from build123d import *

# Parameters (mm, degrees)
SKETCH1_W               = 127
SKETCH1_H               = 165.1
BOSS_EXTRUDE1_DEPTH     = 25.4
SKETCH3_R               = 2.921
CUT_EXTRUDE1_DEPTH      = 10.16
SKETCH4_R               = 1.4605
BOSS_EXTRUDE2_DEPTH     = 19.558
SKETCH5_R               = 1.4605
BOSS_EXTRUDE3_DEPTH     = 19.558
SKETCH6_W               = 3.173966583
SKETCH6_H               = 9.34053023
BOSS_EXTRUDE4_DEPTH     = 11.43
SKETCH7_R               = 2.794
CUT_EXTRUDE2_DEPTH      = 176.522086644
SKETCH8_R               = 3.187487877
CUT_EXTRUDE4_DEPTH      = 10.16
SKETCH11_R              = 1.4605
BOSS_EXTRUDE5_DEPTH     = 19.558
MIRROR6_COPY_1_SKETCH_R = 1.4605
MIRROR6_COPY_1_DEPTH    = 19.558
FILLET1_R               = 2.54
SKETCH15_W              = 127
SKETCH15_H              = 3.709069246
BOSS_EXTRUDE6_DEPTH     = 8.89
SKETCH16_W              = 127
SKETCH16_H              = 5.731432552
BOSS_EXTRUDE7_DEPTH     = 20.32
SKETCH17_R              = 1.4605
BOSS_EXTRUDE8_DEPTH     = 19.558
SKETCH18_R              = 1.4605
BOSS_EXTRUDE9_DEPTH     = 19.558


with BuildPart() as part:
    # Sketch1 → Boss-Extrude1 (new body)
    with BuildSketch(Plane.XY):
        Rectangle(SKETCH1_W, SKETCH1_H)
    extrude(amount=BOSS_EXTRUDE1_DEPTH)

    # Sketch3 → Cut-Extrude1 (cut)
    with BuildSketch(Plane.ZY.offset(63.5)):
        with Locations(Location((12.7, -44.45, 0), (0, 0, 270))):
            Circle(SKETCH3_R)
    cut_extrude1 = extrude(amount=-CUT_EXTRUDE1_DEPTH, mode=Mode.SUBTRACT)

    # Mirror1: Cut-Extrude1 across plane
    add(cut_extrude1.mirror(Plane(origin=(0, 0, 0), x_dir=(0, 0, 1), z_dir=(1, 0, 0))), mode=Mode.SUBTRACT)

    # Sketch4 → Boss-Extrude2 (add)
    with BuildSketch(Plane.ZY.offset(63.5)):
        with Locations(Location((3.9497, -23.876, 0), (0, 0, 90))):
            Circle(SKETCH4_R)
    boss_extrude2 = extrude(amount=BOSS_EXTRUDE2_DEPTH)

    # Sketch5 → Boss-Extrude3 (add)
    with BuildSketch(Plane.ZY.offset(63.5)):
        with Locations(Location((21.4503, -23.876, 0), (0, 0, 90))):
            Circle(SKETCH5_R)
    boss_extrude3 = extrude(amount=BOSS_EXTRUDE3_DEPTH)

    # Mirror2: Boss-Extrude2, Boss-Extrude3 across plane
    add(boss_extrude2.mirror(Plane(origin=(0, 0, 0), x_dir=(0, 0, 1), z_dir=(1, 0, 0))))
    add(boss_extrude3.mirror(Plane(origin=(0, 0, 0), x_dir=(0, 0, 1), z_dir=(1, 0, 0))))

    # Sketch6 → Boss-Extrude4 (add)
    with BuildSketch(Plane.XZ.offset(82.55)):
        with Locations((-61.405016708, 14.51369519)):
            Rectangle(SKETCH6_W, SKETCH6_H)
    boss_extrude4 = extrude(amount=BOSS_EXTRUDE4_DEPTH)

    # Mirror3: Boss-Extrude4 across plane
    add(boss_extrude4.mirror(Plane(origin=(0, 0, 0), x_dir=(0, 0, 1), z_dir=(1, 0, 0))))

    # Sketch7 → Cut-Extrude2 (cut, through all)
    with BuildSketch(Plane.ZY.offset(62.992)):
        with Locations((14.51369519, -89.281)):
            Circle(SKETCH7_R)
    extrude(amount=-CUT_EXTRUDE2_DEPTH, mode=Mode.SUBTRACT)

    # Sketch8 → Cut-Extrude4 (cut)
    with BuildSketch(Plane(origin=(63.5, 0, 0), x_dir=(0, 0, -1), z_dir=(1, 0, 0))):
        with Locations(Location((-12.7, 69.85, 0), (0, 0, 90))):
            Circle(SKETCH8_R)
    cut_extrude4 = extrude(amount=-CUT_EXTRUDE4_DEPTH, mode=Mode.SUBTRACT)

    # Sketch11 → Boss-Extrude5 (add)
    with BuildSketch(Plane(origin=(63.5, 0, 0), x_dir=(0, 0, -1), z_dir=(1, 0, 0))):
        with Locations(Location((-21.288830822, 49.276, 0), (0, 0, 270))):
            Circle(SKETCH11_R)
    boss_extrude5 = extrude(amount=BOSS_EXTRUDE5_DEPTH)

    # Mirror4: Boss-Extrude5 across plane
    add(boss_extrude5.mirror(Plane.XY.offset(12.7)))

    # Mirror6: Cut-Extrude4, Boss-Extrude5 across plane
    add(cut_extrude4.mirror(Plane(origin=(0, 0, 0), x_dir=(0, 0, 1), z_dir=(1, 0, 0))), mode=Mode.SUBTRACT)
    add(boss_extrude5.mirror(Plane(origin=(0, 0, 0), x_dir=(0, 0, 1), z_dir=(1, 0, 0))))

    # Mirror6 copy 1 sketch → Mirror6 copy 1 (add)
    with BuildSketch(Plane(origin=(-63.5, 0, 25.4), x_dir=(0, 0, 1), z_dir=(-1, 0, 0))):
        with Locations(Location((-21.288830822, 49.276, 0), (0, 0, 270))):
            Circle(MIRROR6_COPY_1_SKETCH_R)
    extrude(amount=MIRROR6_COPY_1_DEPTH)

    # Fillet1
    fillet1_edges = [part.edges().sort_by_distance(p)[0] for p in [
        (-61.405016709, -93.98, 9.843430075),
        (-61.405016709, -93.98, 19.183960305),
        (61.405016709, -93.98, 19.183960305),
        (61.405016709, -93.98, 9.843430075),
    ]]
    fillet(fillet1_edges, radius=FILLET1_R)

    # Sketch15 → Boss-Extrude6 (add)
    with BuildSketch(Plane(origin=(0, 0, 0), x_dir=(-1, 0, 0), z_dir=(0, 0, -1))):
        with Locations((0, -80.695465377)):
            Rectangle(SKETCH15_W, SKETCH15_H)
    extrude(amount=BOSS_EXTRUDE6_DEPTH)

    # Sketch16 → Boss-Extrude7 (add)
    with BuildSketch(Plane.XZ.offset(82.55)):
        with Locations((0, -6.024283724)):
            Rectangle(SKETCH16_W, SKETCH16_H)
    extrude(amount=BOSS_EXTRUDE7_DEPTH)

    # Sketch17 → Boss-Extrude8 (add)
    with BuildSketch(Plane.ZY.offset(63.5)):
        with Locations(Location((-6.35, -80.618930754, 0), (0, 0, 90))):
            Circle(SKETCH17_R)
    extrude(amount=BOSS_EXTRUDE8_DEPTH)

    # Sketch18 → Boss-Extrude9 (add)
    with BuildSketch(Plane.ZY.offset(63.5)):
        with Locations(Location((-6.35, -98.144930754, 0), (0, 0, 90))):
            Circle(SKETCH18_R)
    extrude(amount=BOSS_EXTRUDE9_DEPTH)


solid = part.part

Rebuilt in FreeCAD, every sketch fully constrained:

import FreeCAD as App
import Part
import Sketcher
from FreeCAD import Vector
Q = App.Units.Quantity


def edges_at(feature, points):
    """Names of the edges that pass closest to the given points."""
    edges = feature.Shape.Edges
    near = lambda p: min(range(len(edges)), key=lambda i: edges[i].distToShape(Part.Vertex(*p))[0])
    return sorted({f"Edge{near(p) + 1}" for p in points})

doc = App.newDocument("Part")
body = doc.addObject("PartDesign::Body", "Body")

sketch1 = body.newObject("Sketcher::SketchObject", "Sketch")
sketch1.AttachmentSupport = (doc.getObject("XY_Plane"), [""])
sketch1.MapMode = "FlatFace"
sketch1.addGeometry([
    Part.LineSegment(Vector(-63.5, 82.55, 0), Vector(-63.5, -82.55, 0)),
    Part.LineSegment(Vector(-63.5, -82.55, 0), Vector(63.5, -82.55, 0)),
    Part.LineSegment(Vector(63.5, -82.55, 0), Vector(63.5, 82.55, 0)),
    Part.LineSegment(Vector(63.5, 82.55, 0), Vector(-63.5, 82.55, 0)),
], False)
sketch1.addConstraint([
    Sketcher.Constraint("Coincident", 0, 2, 1, 1),
    Sketcher.Constraint("Coincident", 1, 2, 2, 1),
    Sketcher.Constraint("Coincident", 2, 2, 3, 1),
    Sketcher.Constraint("Coincident", 3, 2, 0, 1),
    Sketcher.Constraint("Vertical", 0),
    Sketcher.Constraint("Horizontal", 1),
    Sketcher.Constraint("Vertical", 2),
    Sketcher.Constraint("Horizontal", 3),
    Sketcher.Constraint("Symmetric", 0, 2, 2, 2, -1, 1),
    Sketcher.Constraint("DistanceX", 1, 1, 1, 2, Q("5 in")),
    Sketcher.Constraint("DistanceY", 0, 2, 0, 1, Q("6.5 in")),
])
pad1 = body.newObject("PartDesign::Pad", "Pad")
pad1.Profile = sketch1
pad1.Length = Q("1 in")

sketch2 = body.newObject("Sketcher::SketchObject", "Sketch001")
sketch2.AttachmentSupport = (doc.getObject("YZ_Plane"), [""])
sketch2.MapMode = "FlatFace"
sketch2.AttachmentOffset = App.Placement(Vector(0, 0, -2.5 * 25.4), App.Rotation())
sketch2.addGeometry(Part.Circle(Vector(-44.45, 12.7, 0), Vector(0, 0, 1), 2.921), False)
sketch2.addConstraint([
    Sketcher.Constraint("Diameter", 0, Q("0.23 in")),
    Sketcher.Constraint("DistanceY", -1, 1, 0, 3, Q("0.5 in")),
    Sketcher.Constraint("DistanceX", 0, 3, -1, 1, Q("1.75 in")),
])
pocket1 = body.newObject("PartDesign::Pocket", "Pocket")
pocket1.Profile = sketch2
pocket1.Length = Q("0.4 in")
pocket1.Reversed = True
doc.recompute()

mirrored = body.newObject("PartDesign::Mirrored", "Mirrored")
mirrored.Originals = [pocket1]
mirrored.MirrorPlane = (doc.getObject("YZ_Plane"), [""])
body.Tip = mirrored

sketch3 = body.newObject("Sketcher::SketchObject", "Sketch002")
sketch3.AttachmentSupport = (doc.getObject("YZ_Plane"), [""])
sketch3.MapMode = "FlatFace"
sketch3.AttachmentOffset = App.Placement(Vector(0, 0, -2.5 * 25.4), App.Rotation())
sketch3.addGeometry(Part.Circle(Vector(-23.876, 3.9497, 0), Vector(0, 0, 1), 1.4605), False)
sketch3.addConstraint([
    Sketcher.Constraint("Diameter", 0, Q("0.115 in")),
    Sketcher.Constraint("DistanceX", 0, 3, -1, 1, Q("0.94 in")),
    Sketcher.Constraint("DistanceY", -1, 1, 0, 3, Q("0.1555 in")),
])
pad2 = body.newObject("PartDesign::Pad", "Pad001")
pad2.Profile = sketch3
pad2.Length = Q("0.77 in")
pad2.Reversed = True

sketch4 = body.newObject("Sketcher::SketchObject", "Sketch003")
sketch4.AttachmentSupport = (doc.getObject("YZ_Plane"), [""])
sketch4.MapMode = "FlatFace"
sketch4.AttachmentOffset = App.Placement(Vector(0, 0, -2.5 * 25.4), App.Rotation())
sketch4.addGeometry(Part.Circle(Vector(-23.876, 21.4503, 0), Vector(0, 0, 1), 1.4605), False)
sketch4.addConstraint([
    Sketcher.Constraint("Diameter", 0, Q("0.115 in")),
    Sketcher.Constraint("DistanceX", 0, 3, -1, 1, Q("0.94 in")),
    Sketcher.Constraint("DistanceY", -1, 1, 0, 3, Q("0.8445 in")),
])
pad3 = body.newObject("PartDesign::Pad", "Pad002")
pad3.Profile = sketch4
pad3.Length = Q("0.77 in")
pad3.Reversed = True
doc.recompute()

mirrored2 = body.newObject("PartDesign::Mirrored", "Mirrored001")
mirrored2.Originals = [pad2, pad3]
mirrored2.MirrorPlane = (doc.getObject("YZ_Plane"), [""])
body.Tip = mirrored2

sketch5 = body.newObject("Sketcher::SketchObject", "Sketch004")
sketch5.AttachmentSupport = (doc.getObject("XZ_Plane"), [""])
sketch5.MapMode = "FlatFace"
sketch5.AttachmentOffset = App.Placement(Vector(0, 0, 3.25 * 25.4), App.Rotation())
sketch5.addGeometry([
    Part.LineSegment(Vector(-62.992, 19.18396, 0), Vector(-62.992, 9.84343, 0)),
    Part.LineSegment(Vector(-62.992, 9.84343, 0), Vector(-59.818033, 9.84343, 0)),
    Part.LineSegment(Vector(-59.818033, 9.84343, 0), Vector(-59.818033, 19.18396, 0)),
    Part.LineSegment(Vector(-59.818033, 19.18396, 0), Vector(-62.992, 19.18396, 0)),
], False)
sketch5.addConstraint([
    Sketcher.Constraint("Coincident", 0, 2, 1, 1),
    Sketcher.Constraint("Coincident", 1, 2, 2, 1),
    Sketcher.Constraint("Coincident", 2, 2, 3, 1),
    Sketcher.Constraint("Coincident", 3, 2, 0, 1),
    Sketcher.Constraint("Vertical", 0),
    Sketcher.Constraint("Horizontal", 1),
    Sketcher.Constraint("Vertical", 2),
    Sketcher.Constraint("Horizontal", 3),
    Sketcher.Constraint("DistanceX", 0, 2, -1, 1, Q("2.48 in")),
    Sketcher.Constraint("DistanceY", 0, 2, 0, 1, Q("9.34053 mm")),
    Sketcher.Constraint("DistanceX", 1, 1, 1, 2, Q("3.173967 mm")),
    Sketcher.Constraint("DistanceY", -1, 1, 0, 2, Q("9.84343 mm")),
])
pad4 = body.newObject("PartDesign::Pad", "Pad003")
pad4.Profile = sketch5
pad4.Length = Q("0.45 in")
doc.recompute()

mirrored3 = body.newObject("PartDesign::Mirrored", "Mirrored002")
mirrored3.Originals = [pad4]
mirrored3.MirrorPlane = (doc.getObject("YZ_Plane"), [""])
body.Tip = mirrored3

sketch6 = body.newObject("Sketcher::SketchObject", "Sketch005")
sketch6.AttachmentSupport = (doc.getObject("YZ_Plane"), [""])
sketch6.MapMode = "FlatFace"
sketch6.AttachmentOffset = App.Placement(Vector(0, 0, -2.48 * 25.4), App.Rotation())
sketch6.addGeometry(Part.Circle(Vector(-89.281, 14.513695, 0), Vector(0, 0, 1), 2.794), False)
sketch6.addConstraint([
    Sketcher.Constraint("Diameter", 0, Q("0.22 in")),
    Sketcher.Constraint("DistanceX", 0, 3, -1, 1, Q("3.515 in")),
    Sketcher.Constraint("DistanceY", -1, 1, 0, 3, Q("14.513695 mm")),
])
pocket2 = body.newObject("PartDesign::Pocket", "Pocket001")
pocket2.Profile = sketch6
pocket2.Type = "ThroughAll"
pocket2.Reversed = True

sketch7 = body.newObject("Sketcher::SketchObject", "Sketch006")
sketch7.AttachmentSupport = (doc.getObject("YZ_Plane"), [""])
sketch7.MapMode = "FlatFace"
sketch7.AttachmentOffset = App.Placement(Vector(0, 0, 2.5 * 25.4), App.Rotation())
sketch7.addGeometry(Part.Circle(Vector(69.85, 12.7, 0), Vector(0, 0, 1), 3.187488), False)
sketch7.addConstraint([
    Sketcher.Constraint("DistanceY", -1, 1, 0, 3, Q("0.5 in")),
    Sketcher.Constraint("DistanceX", -1, 1, 0, 3, Q("2.75 in")),
    Sketcher.Constraint("Diameter", 0, Q("6.374976 mm")),
])
pocket3 = body.newObject("PartDesign::Pocket", "Pocket002")
pocket3.Profile = sketch7
pocket3.Length = Q("0.4 in")

sketch8 = body.newObject("Sketcher::SketchObject", "Sketch007")
sketch8.AttachmentSupport = (doc.getObject("YZ_Plane"), [""])
sketch8.MapMode = "FlatFace"
sketch8.AttachmentOffset = App.Placement(Vector(0, 0, 2.5 * 25.4), App.Rotation())
sketch8.addGeometry(Part.Circle(Vector(49.276, 21.288831, 0), Vector(0, 0, 1), 1.4605), False)
sketch8.addConstraint([
    Sketcher.Constraint("Diameter", 0, Q("0.115 in")),
    Sketcher.Constraint("DistanceX", -1, 1, 0, 3, Q("1.94 in")),
    Sketcher.Constraint("DistanceY", -1, 1, 0, 3, Q("21.288831 mm")),
])
pad5 = body.newObject("PartDesign::Pad", "Pad004")
pad5.Profile = sketch8
pad5.Length = Q("0.77 in")
doc.recompute()

datumplane = body.newObject("PartDesign::Plane", "DatumPlane")
datumplane.AttachmentSupport = (doc.getObject("XY_Plane"), [""])
datumplane.MapMode = "FlatFace"
datumplane.AttachmentOffset = App.Placement(Vector(0, 0, 0.5 * 25.4), App.Rotation())
mirrored4 = body.newObject("PartDesign::Mirrored", "Mirrored003")
mirrored4.Originals = [pad5]
mirrored4.MirrorPlane = (datumplane, [""])
body.Tip = mirrored4
doc.recompute()

mirrored5 = body.newObject("PartDesign::Mirrored", "Mirrored004")
mirrored5.Originals = [pocket3, pad5]
mirrored5.MirrorPlane = (doc.getObject("YZ_Plane"), [""])
body.Tip = mirrored5

sketch9 = body.newObject("Sketcher::SketchObject", "Sketch008")
sketch9.AttachmentSupport = (doc.getObject("YZ_Plane"), [""])
sketch9.MapMode = "FlatFace"
sketch9.AttachmentOffset = App.Placement(Vector(0, 0, -2.5 * 25.4), App.Rotation())
sketch9.addGeometry(Part.Circle(Vector(49.276, 4.111169, 0), Vector(0, 0, 1), 1.4605), False)
sketch9.addConstraint([
    Sketcher.Constraint("Diameter", 0, Q("0.115 in")),
    Sketcher.Constraint("DistanceX", -1, 1, 0, 3, Q("1.94 in")),
    Sketcher.Constraint("DistanceY", -1, 1, 0, 3, Q("4.111169 mm")),
])
pad6 = body.newObject("PartDesign::Pad", "Pad005")
pad6.Profile = sketch9
pad6.Length = Q("0.77 in")
pad6.Reversed = True
doc.recompute()

fillet = body.newObject("PartDesign::Fillet", "Fillet")
fillet.Base = (pad6, edges_at(pad6, [
    (-61.405, -93.98, 9.843),
    (-61.405, -93.98, 19.184),
    (61.405, -93.98, 19.184),
    (61.405, -93.98, 9.843),
]))
fillet.Radius = Q("0.1 in")

sketch10 = body.newObject("Sketcher::SketchObject", "Sketch009")
sketch10.AttachmentSupport = (doc.getObject("XY_Plane"), [""])
sketch10.MapMode = "FlatFace"
sketch10.addGeometry([
    Part.LineSegment(Vector(63.5, -78.840931, 0), Vector(63.5, -82.55, 0)),
    Part.LineSegment(Vector(63.5, -82.55, 0), Vector(-63.5, -82.55, 0)),
    Part.LineSegment(Vector(-63.5, -82.55, 0), Vector(-63.5, -78.840931, 0)),
    Part.LineSegment(Vector(-63.5, -78.840931, 0), Vector(63.5, -78.840931, 0)),
], False)
sketch10.addConstraint([
    Sketcher.Constraint("Coincident", 0, 2, 1, 1),
    Sketcher.Constraint("Coincident", 1, 2, 2, 1),
    Sketcher.Constraint("Coincident", 2, 2, 3, 1),
    Sketcher.Constraint("Coincident", 3, 2, 0, 1),
    Sketcher.Constraint("Vertical", 0),
    Sketcher.Constraint("Horizontal", 1),
    Sketcher.Constraint("Vertical", 2),
    Sketcher.Constraint("Horizontal", 3),
    Sketcher.Constraint("DistanceX", 1, 2, 1, 1, Q("5 in")),
    Sketcher.Constraint("DistanceX", -1, 1, 0, 2, Q("2.5 in")),
    Sketcher.Constraint("DistanceY", 0, 2, -1, 1, Q("3.25 in")),
    Sketcher.Constraint("DistanceY", 0, 2, 0, 1, Q("3.709069 mm")),
])
pad7 = body.newObject("PartDesign::Pad", "Pad006")
pad7.Profile = sketch10
pad7.Length = Q("0.35 in")
pad7.Reversed = True

sketch11 = body.newObject("Sketcher::SketchObject", "Sketch010")
sketch11.AttachmentSupport = (doc.getObject("XZ_Plane"), [""])
sketch11.MapMode = "FlatFace"
sketch11.AttachmentOffset = App.Placement(Vector(0, 0, 3.25 * 25.4), App.Rotation())
sketch11.addGeometry([
    Part.LineSegment(Vector(-63.5, -3.158567, 0), Vector(-63.5, -8.89, 0)),
    Part.LineSegment(Vector(-63.5, -8.89, 0), Vector(63.5, -8.89, 0)),
    Part.LineSegment(Vector(63.5, -8.89, 0), Vector(63.5, -3.158567, 0)),
    Part.LineSegment(Vector(63.5, -3.158567, 0), Vector(-63.5, -3.158567, 0)),
], False)
sketch11.addConstraint([
    Sketcher.Constraint("Coincident", 0, 2, 1, 1),
    Sketcher.Constraint("Coincident", 1, 2, 2, 1),
    Sketcher.Constraint("Coincident", 2, 2, 3, 1),
    Sketcher.Constraint("Coincident", 3, 2, 0, 1),
    Sketcher.Constraint("Vertical", 0),
    Sketcher.Constraint("Horizontal", 1),
    Sketcher.Constraint("Vertical", 2),
    Sketcher.Constraint("Horizontal", 3),
    Sketcher.Constraint("DistanceX", 1, 1, 1, 2, Q("5 in")),
    Sketcher.Constraint("DistanceX", 0, 2, -1, 1, Q("2.5 in")),
    Sketcher.Constraint("DistanceY", 0, 2, -1, 1, Q("0.35 in")),
    Sketcher.Constraint("DistanceY", 0, 2, 0, 1, Q("5.731433 mm")),
])
pad8 = body.newObject("PartDesign::Pad", "Pad007")
pad8.Profile = sketch11
pad8.Length = Q("0.8 in")

sketch12 = body.newObject("Sketcher::SketchObject", "Sketch011")
sketch12.AttachmentSupport = (doc.getObject("YZ_Plane"), [""])
sketch12.MapMode = "FlatFace"
sketch12.AttachmentOffset = App.Placement(Vector(0, 0, -2.5 * 25.4), App.Rotation())
sketch12.addGeometry(Part.Circle(Vector(-80.618931, -6.35, 0), Vector(0, 0, 1), 1.4605), False)
sketch12.addConstraint([
    Sketcher.Constraint("Diameter", 0, Q("0.115 in")),
    Sketcher.Constraint("DistanceY", 0, 3, -1, 1, Q("0.25 in")),
    Sketcher.Constraint("DistanceX", 0, 3, -1, 1, Q("80.618931 mm")),
])
pad9 = body.newObject("PartDesign::Pad", "Pad008")
pad9.Profile = sketch12
pad9.Length = Q("0.77 in")
pad9.Reversed = True

sketch13 = body.newObject("Sketcher::SketchObject", "Sketch012")
sketch13.AttachmentSupport = (doc.getObject("YZ_Plane"), [""])
sketch13.MapMode = "FlatFace"
sketch13.AttachmentOffset = App.Placement(Vector(0, 0, -2.5 * 25.4), App.Rotation())
sketch13.addGeometry(Part.Circle(Vector(-98.144931, -6.35, 0), Vector(0, 0, 1), 1.4605), False)
sketch13.addConstraint([
    Sketcher.Constraint("Diameter", 0, Q("0.115 in")),
    Sketcher.Constraint("DistanceY", 0, 3, -1, 1, Q("0.25 in")),
    Sketcher.Constraint("DistanceX", 0, 3, -1, 1, Q("98.144931 mm")),
])
pad10 = body.newObject("PartDesign::Pad", "Pad009")
pad10.Profile = sketch13
pad10.Length = Q("0.77 in")
pad10.Reversed = True

doc.recompute()
